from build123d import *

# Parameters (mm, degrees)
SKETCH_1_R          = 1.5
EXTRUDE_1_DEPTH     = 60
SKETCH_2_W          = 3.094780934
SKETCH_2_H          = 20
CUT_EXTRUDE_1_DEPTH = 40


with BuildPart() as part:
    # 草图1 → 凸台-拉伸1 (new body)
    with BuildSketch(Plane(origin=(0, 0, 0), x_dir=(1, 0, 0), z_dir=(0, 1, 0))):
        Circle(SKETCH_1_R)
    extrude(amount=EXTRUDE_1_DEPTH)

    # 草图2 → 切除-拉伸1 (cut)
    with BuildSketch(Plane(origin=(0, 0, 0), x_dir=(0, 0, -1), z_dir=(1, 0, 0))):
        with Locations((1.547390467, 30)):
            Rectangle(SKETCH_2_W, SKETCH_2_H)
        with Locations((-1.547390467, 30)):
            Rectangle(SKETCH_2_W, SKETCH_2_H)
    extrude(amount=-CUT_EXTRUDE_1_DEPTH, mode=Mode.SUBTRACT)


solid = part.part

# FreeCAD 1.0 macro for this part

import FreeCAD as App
import Part
import Sketcher

V = App.Vector
Q = App.Units.Quantity


def add_polygon(sketch, points):
    """Adds a closed chain of lines whose ends are joined by coincident constraints."""
    first, n = sketch.GeometryCount, len(points)
    for a, b in zip(points, points[1:] + points[:1]):
        sketch.addGeometry(Part.LineSegment(App.Vector(*a, 0), App.Vector(*b, 0)), False)
    for i in range(n):
        sketch.addConstraint(Sketcher.Constraint("Coincident", first + i, 2, first + (i + 1) % n, 1))

doc = App.newDocument("Part")
body = doc.addObject("PartDesign::Body", "Body")

sketch1 = body.newObject("Sketcher::SketchObject", "Sketch")
sketch1.AttachmentSupport = (doc.getObject("XZ_Plane"), [""])
sketch1.MapMode = "FlatFace"
sketch1.addGeometry(Part.Circle(V(0, 0, 0), V(0, 0, 1), 1.5), False)
sketch1.addConstraint(Sketcher.Constraint("Coincident", 0, 3, -1, 1))
sketch1.addConstraint(Sketcher.Constraint("Diameter", 0, Q("3 mm")))
pad1 = body.newObject("PartDesign::Pad", "Pad")
pad1.Profile = sketch1
pad1.Length = 60
pad1.Reversed = True

sketch2 = body.newObject("Sketcher::SketchObject", "Sketch001")
sketch2.AttachmentSupport = (doc.getObject("YZ_Plane"), [""])
sketch2.MapMode = "FlatFace"
add_polygon(sketch2, [(20, -3), (40, -3), (40, 3), (20, 3)])
sketch2.addConstraint(Sketcher.Constraint("Horizontal", 0))
sketch2.addConstraint(Sketcher.Constraint("Vertical", 1))
sketch2.addConstraint(Sketcher.Constraint("Horizontal", 2))
sketch2.addConstraint(Sketcher.Constraint("Vertical", 3))
sketch2.addConstraint(Sketcher.Constraint("DistanceX", 0, 1, 0, 2, Q("20 mm")))
sketch2.addConstraint(Sketcher.Constraint("DistanceX", -1, 1, 0, 2, Q("40 mm")))
sketch2.addConstraint(Sketcher.Constraint("DistanceY", 1, 1, 1, 2, Q("6.189562 mm")))
sketch2.addConstraint(Sketcher.Constraint("DistanceY", 0, 2, -1, 1, Q("3.094781 mm")))
pocket1 = body.newObject("PartDesign::Pocket", "Pocket")
pocket1.Profile = sketch2
pocket1.Length = 40

doc.recompute()
